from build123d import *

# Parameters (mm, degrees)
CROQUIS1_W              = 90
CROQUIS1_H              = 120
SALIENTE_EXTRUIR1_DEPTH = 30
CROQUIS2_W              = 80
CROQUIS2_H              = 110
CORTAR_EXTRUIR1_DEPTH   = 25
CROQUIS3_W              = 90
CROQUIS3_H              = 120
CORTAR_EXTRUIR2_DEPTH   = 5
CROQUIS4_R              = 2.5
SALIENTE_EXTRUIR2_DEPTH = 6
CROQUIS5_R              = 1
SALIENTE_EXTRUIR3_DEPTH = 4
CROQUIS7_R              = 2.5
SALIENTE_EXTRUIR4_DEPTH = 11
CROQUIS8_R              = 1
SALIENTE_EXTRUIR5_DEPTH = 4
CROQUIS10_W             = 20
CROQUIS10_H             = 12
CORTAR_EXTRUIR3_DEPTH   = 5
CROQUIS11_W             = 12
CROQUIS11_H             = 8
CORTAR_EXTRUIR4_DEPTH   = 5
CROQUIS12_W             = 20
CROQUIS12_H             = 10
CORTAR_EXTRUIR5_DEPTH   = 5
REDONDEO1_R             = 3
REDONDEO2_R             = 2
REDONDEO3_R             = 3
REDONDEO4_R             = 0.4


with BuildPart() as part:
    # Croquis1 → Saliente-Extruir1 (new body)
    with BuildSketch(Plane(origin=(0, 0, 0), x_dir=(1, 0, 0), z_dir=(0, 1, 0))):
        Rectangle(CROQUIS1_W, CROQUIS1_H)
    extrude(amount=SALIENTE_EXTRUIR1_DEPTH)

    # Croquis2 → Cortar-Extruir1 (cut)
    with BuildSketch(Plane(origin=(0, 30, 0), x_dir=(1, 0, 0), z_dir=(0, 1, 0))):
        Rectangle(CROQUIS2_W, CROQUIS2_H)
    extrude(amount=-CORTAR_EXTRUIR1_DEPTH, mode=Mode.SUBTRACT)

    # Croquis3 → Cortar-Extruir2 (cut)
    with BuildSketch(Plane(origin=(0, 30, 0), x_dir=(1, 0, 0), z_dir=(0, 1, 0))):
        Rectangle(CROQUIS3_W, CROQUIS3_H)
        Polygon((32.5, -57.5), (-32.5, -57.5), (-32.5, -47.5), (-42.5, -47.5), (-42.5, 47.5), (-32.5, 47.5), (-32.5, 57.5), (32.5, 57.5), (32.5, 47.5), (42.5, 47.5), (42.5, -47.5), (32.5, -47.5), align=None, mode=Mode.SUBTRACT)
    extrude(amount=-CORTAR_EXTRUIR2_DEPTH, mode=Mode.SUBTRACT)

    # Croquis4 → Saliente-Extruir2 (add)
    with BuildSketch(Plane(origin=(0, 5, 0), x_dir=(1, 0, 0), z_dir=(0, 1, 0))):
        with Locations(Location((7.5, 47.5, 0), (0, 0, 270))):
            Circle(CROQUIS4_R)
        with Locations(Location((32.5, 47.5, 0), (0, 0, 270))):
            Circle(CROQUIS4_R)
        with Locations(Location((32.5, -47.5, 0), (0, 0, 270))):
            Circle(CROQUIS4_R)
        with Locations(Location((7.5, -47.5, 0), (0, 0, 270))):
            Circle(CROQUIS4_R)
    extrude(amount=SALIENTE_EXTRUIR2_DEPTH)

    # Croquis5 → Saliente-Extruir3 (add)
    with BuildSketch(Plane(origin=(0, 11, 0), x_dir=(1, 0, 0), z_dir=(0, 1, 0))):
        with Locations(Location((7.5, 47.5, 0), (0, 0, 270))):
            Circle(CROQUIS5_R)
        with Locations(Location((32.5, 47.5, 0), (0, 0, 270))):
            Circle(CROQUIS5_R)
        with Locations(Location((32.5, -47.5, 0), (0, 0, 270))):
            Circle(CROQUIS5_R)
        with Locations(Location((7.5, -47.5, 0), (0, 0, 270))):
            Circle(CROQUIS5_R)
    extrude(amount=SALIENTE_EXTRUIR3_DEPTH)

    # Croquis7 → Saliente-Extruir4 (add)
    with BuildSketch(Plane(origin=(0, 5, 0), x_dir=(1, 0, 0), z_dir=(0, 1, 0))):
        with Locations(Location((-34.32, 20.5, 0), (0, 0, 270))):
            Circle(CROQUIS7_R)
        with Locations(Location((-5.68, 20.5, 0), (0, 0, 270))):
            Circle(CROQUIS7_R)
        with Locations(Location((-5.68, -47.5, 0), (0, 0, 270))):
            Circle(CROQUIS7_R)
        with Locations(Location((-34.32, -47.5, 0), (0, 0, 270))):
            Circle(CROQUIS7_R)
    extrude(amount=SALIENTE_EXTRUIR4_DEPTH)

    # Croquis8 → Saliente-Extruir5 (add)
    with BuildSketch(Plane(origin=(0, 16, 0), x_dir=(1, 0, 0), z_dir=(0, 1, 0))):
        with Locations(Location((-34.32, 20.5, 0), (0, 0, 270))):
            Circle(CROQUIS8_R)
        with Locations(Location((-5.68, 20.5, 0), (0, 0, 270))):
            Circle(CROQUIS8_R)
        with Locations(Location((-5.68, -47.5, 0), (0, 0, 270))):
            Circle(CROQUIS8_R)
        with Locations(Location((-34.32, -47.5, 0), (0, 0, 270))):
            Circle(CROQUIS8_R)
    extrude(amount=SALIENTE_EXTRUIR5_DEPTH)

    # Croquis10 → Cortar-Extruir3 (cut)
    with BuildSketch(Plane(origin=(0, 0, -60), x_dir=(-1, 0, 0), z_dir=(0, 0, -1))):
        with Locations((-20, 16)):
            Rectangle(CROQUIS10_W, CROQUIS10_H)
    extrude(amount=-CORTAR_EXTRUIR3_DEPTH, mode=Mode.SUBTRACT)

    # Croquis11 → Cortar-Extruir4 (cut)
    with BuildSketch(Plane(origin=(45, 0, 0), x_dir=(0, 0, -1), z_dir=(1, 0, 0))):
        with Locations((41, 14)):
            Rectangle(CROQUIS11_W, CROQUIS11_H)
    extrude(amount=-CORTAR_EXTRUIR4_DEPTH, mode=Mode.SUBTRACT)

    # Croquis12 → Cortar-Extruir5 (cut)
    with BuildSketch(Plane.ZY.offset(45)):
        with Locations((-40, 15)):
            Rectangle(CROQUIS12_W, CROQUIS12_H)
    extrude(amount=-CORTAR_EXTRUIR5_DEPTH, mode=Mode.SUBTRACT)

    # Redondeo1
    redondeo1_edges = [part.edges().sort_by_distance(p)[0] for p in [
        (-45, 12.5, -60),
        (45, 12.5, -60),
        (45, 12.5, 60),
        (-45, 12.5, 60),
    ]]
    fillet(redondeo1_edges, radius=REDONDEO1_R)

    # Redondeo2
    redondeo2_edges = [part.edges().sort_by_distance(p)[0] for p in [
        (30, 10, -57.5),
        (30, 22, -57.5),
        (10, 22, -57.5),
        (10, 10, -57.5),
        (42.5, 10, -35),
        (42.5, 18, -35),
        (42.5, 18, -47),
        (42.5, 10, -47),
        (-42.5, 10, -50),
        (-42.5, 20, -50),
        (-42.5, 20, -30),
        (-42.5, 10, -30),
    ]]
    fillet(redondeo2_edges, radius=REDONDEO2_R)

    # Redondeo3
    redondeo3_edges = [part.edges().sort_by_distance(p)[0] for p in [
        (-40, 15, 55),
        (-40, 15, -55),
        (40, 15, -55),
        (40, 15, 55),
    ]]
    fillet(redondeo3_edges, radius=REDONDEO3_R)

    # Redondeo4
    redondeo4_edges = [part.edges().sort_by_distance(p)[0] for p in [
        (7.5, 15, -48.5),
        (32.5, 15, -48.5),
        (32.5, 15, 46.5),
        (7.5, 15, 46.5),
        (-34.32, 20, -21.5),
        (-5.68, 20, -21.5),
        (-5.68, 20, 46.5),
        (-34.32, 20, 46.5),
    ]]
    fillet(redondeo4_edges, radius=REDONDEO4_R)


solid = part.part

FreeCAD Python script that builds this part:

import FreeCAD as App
import Part
import Sketcher
from FreeCAD import Vector
Q = App.Units.Quantity


def edges_at(feature, points):
    """Names of the edges that pass closest to the given points."""
    edges = feature.Shape.Edges
    near = lambda p: min(range(len(edges)), key=lambda i: edges[i].distToShape(Part.Vertex(*p))[0])
    return sorted({f"Edge{near(p) + 1}" for p in points})


def add_polygon(sketch, points):
    """Adds a closed chain of lines whose ends are joined by coincident constraints."""
    first, n = sketch.GeometryCount, len(points)
    for a, b in zip(points, points[1:] + points[:1]):
        sketch.addGeometry(Part.LineSegment(App.Vector(*a, 0), App.Vector(*b, 0)), False)
    for i in range(n):
        sketch.addConstraint(Sketcher.Constraint("Coincident", first + i, 2, first + (i + 1) % n, 1))

doc = App.newDocument("Part")
body = doc.addObject("PartDesign::Body", "Body")

sketch1 = doc.addObject("Sketcher::SketchObject", "Sketch")
body.addObject(sketch1)
sketch1.AttachmentSupport = (doc.XZ_Plane, [""])
sketch1.MapMode = "FlatFace"
add_polygon(sketch1, [(-45, -60), (-45, 60), (45, 60), (45, -60)])
sketch1.addConstraint(Sketcher.Constraint("Vertical", 0))
sketch1.addConstraint(Sketcher.Constraint("Horizontal", 1))
sketch1.addConstraint(Sketcher.Constraint("Vertical", 2))
sketch1.addConstraint(Sketcher.Constraint("Horizontal", 3))
sketch1.addConstraint(Sketcher.Constraint("Symmetric", 0, 2, 2, 2, -1, 1))
sketch1.addConstraint(Sketcher.Constraint("DistanceX", 1, 1, 1, 2, Q("90 mm")))
sketch1.addConstraint(Sketcher.Constraint("DistanceY", 0, 1, 0, 2, Q("120 mm")))
pad1 = doc.addObject("PartDesign::Pad", "Pad")
body.addObject(pad1)
pad1.Profile = sketch1
pad1.Length = 30
pad1.Reversed = True

sketch2 = doc.addObject("Sketcher::SketchObject", "Sketch001")
body.addObject(sketch2)
sketch2.AttachmentSupport = (doc.XZ_Plane, [""])
sketch2.MapMode = "FlatFace"
sketch2.AttachmentOffset = App.Placement(Vector(0, 0, -30), App.Rotation())
add_polygon(sketch2, [(-40, -55), (-40, 55), (40, 55), (40, -55)])
sketch2.addConstraint(Sketcher.Constraint("Vertical", 0))
sketch2.addConstraint(Sketcher.Constraint("Horizontal", 1))
sketch2.addConstraint(Sketcher.Constraint("Vertical", 2))
sketch2.addConstraint(Sketcher.Constraint("Horizontal", 3))
sketch2.addConstraint(Sketcher.Constraint("Symmetric", 0, 2, 2, 2, -1, 1))
sketch2.addConstraint(Sketcher.Constraint("DistanceX", 1, 1, 1, 2, Q("80 mm")))
sketch2.addConstraint(Sketcher.Constraint("DistanceY", 0, 1, 0, 2, Q("110 mm")))
pocket1 = doc.addObject("PartDesign::Pocket", "Pocket")
body.addObject(pocket1)
pocket1.Profile = sketch2
pocket1.Length = 25
pocket1.Reversed = True

sketch3 = doc.addObject("Sketcher::SketchObject", "Sketch002")
body.addObject(sketch3)
sketch3.AttachmentSupport = (doc.XZ_Plane, [""])
sketch3.MapMode = "FlatFace"
sketch3.AttachmentOffset = App.Placement(Vector(0, 0, -30), App.Rotation())
add_polygon(sketch3, [(-45, -60), (-45, 60), (45, 60), (45, -60)])
add_polygon(sketch3, [(32, 48), (32, 58), (-32, 58), (-32, 48), (-42, 48), (-42, -48), (-32, -48), (-32, -58), (32, -58), (32, -48), (42, -48), (42, 48)])
sketch3.addConstraint(Sketcher.Constraint("Vertical", 0))
sketch3.addConstraint(Sketcher.Constraint("Horizontal", 1))
sketch3.addConstraint(Sketcher.Constraint("Vertical", 2))
sketch3.addConstraint(Sketcher.Constraint("Horizontal", 3))
sketch3.addConstraint(Sketcher.Constraint("Vertical", 4))
sketch3.addConstraint(Sketcher.Constraint("Horizontal", 5))
sketch3.addConstraint(Sketcher.Constraint("Vertical", 6))
sketch3.addConstraint(Sketcher.Constraint("Horizontal", 7))
sketch3.addConstraint(Sketcher.Constraint("Vertical", 8))
sketch3.addConstraint(Sketcher.Constraint("Horizontal", 9))
sketch3.addConstraint(Sketcher.Constraint("Vertical", 10))
sketch3.addConstraint(Sketcher.Constraint("Horizontal", 11))
sketch3.addConstraint(Sketcher.Constraint("Vertical", 12))
sketch3.addConstraint(Sketcher.Constraint("Horizontal", 13))
sketch3.addConstraint(Sketcher.Constraint("Vertical", 14))
sketch3.addConstraint(Sketcher.Constraint("Horizontal", 15))
sketch3.addConstraint(Sketcher.Constraint("Symmetric", 0, 2, 2, 2, -1, 1))
sketch3.addConstraint(Sketcher.Constraint("Symmetric", 4, 2, 10, 2, -1, 1))
sketch3.addConstraint(Sketcher.Constraint("Symmetric", 6, 2, 12, 2, -1, 1))
sketch3.addConstraint(Sketcher.Constraint("Symmetric", 8, 2, 14, 2, -1, 1))
sketch3.addConstraint(Sketcher.Constraint("Symmetric", 9, 2, 12, 2, -2))
sketch3.addConstraint(Sketcher.Constraint("Equal", 15, 4))
sketch3.addConstraint(Sketcher.Constraint("DistanceX", 1, 1, 1, 2, Q("90 mm")))
sketch3.addConstraint(Sketcher.Constraint("DistanceX", 5, 2, 5, 1, Q("65 mm")))
sketch3.addConstraint(Sketcher.Constraint("DistanceX", 7, 2, 7, 1, Q("10 mm")))
sketch3.addConstraint(Sketcher.Constraint("DistanceY", 0, 1, 0, 2, Q("120 mm")))
sketch3.addConstraint(Sketcher.Constraint("DistanceY", 8, 2, 8, 1, Q("95 mm")))
pocket2 = doc.addObject("PartDesign::Pocket", "Pocket001")
body.addObject(pocket2)
pocket2.Profile = sketch3
pocket2.Length = 5
pocket2.Reversed = True

sketch4 = doc.addObject("Sketcher::SketchObject", "Sketch003")
body.addObject(sketch4)
sketch4.AttachmentSupport = (doc.XZ_Plane, [""])
sketch4.MapMode = "FlatFace"
sketch4.AttachmentOffset = App.Placement(Vector(0, 0, -5), App.Rotation())
sketch4.addGeometry(Part.Circle(Vector(7.5, -47.5, 0), Vector(0, 0, 1), 2.5), False)
sketch4.addGeometry(Part.Circle(Vector(32.5, -47.5, 0), Vector(0, 0, 1), 2.5), False)
sketch4.addGeometry(Part.Circle(Vector(32.5, 47.5, 0), Vector(0, 0, 1), 2.5), False)
sketch4.addGeometry(Part.Circle(Vector(7.5, 47.5, 0), Vector(0, 0, 1), 2.5), False)
sketch4.addConstraint(Sketcher.Constraint("Equal", 0, 1))
sketch4.addConstraint(Sketcher.Constraint("Equal", 1, 2))
sketch4.addConstraint(Sketcher.Constraint("Equal", 2, 3))
sketch4.addConstraint(Sketcher.Constraint("Symmetric", 1, 3, 2, 3, -1))
sketch4.addConstraint(Sketcher.Constraint("Symmetric", 0, 3, 3, 3, -1))
sketch4.addConstraint(Sketcher.Constraint("Horizontal", 0, 3, 1, 3))
sketch4.addConstraint(Sketcher.Constraint("Diameter", 0, Q("5 mm")))
sketch4.addConstraint(Sketcher.Constraint("DistanceX", 0, 3, 1, 3, Q("25 mm")))
sketch4.addConstraint(Sketcher.Constraint("DistanceY", 1, 3, 2, 3, Q("95 mm")))
sketch4.addConstraint(Sketcher.Constraint("DistanceX", -1, 1, 0, 3, Q("7.5 mm")))
pad2 = doc.addObject("PartDesign::Pad", "Pad001")
body.addObject(pad2)
pad2.Profile = sketch4
pad2.Length = 6
pad2.Reversed = True

sketch5 = doc.addObject("Sketcher::SketchObject", "Sketch004")
body.addObject(sketch5)
sketch5.AttachmentSupport = (doc.XZ_Plane, [""])
sketch5.MapMode = "FlatFace"
sketch5.AttachmentOffset = App.Placement(Vector(0, 0, -11), App.Rotation())
sketch5.addGeometry(Part.Circle(Vector(7.5, -47.5, 0), Vector(0, 0, 1), 1), False)
sketch5.addGeometry(Part.Circle(Vector(32.5, -47.5, 0), Vector(0, 0, 1), 1), False)
sketch5.addGeometry(Part.Circle(Vector(32.5, 47.5, 0), Vector(0, 0, 1), 1), False)
sketch5.addGeometry(Part.Circle(Vector(7.5, 47.5, 0), Vector(0, 0, 1), 1), False)
sketch5.addConstraint(Sketcher.Constraint("Equal", 0, 1))
sketch5.addConstraint(Sketcher.Constraint("Equal", 1, 2))
sketch5.addConstraint(Sketcher.Constraint("Equal", 2, 3))
sketch5.addConstraint(Sketcher.Constraint("Symmetric", 1, 3, 2, 3, -1))
sketch5.addConstraint(Sketcher.Constraint("Symmetric", 0, 3, 3, 3, -1))
sketch5.addConstraint(Sketcher.Constraint("Horizontal", 0, 3, 1, 3))
sketch5.addConstraint(Sketcher.Constraint("Diameter", 0, Q("2 mm")))
sketch5.addConstraint(Sketcher.Constraint("DistanceX", 0, 3, 1, 3, Q("25 mm")))
sketch5.addConstraint(Sketcher.Constraint("DistanceY", 1, 3, 2, 3, Q("95 mm")))
sketch5.addConstraint(Sketcher.Constraint("DistanceX", -1, 1, 0, 3, Q("7.5 mm")))
pad3 = doc.addObject("PartDesign::Pad", "Pad002")
body.addObject(pad3)
pad3.Profile = sketch5
pad3.Length = 4
pad3.Reversed = True

sketch6 = doc.addObject("Sketcher::SketchObject", "Sketch005")
body.addObject(sketch6)
sketch6.AttachmentSupport = (doc.XZ_Plane, [""])
sketch6.MapMode = "FlatFace"
sketch6.AttachmentOffset = App.Placement(Vector(0, 0, -5), App.Rotation())
sketch6.addGeometry(Part.Circle(Vector(-34.3, -20.5, 0), Vector(0, 0, 1), 2.5), False)
sketch6.addGeometry(Part.Circle(Vector(-5.7, -20.5, 0), Vector(0, 0, 1), 2.5), False)
sketch6.addGeometry(Part.Circle(Vector(-5.7, 47.5, 0), Vector(0, 0, 1), 2.5), False)
sketch6.addGeometry(Part.Circle(Vector(-34.3, 47.5, 0), Vector(0, 0, 1), 2.5), False)
sketch6.addConstraint(Sketcher.Constraint("Equal", 0, 1))
sketch6.addConstraint(Sketcher.Constraint("Equal", 1, 2))
sketch6.addConstraint(Sketcher.Constraint("Equal", 2, 3))
sketch6.addConstraint(Sketcher.Constraint("Horizontal", 0, 3, 1, 3))
sketch6.addConstraint(Sketcher.Constraint("Horizontal", 2, 3, 3, 3))
sketch6.addConstraint(Sketcher.Constraint("Vertical", 1, 3, 2, 3))
sketch6.addConstraint(Sketcher.Constraint("Vertical", 0, 3, 3, 3))
sketch6.addConstraint(Sketcher.Constraint("Diameter", 0, Q("5 mm")))
sketch6.addConstraint(Sketcher.Constraint("DistanceY", 1, 3, 2, 3, Q("68 mm")))
sketch6.addConstraint(Sketcher.Constraint("DistanceY", 0, 3, -1, 1, Q("20.5 mm")))
sketch6.addConstraint(Sketcher.Constraint("DistanceX", 0, 3, -1, 1, Q("34.32 mm")))
sketch6.addConstraint(Sketcher.Constraint("DistanceX", 1, 3, -1, 1, Q("5.68 mm")))
pad4 = doc.addObject("PartDesign::Pad", "Pad003")
body.addObject(pad4)
pad4.Profile = sketch6
pad4.Length = 11
pad4.Reversed = True

sketch7 = doc.addObject("Sketcher::SketchObject", "Sketch006")
body.addObject(sketch7)
sketch7.AttachmentSupport = (doc.XZ_Plane, [""])
sketch7.MapMode = "FlatFace"
sketch7.AttachmentOffset = App.Placement(Vector(0, 0, -16), App.Rotation())
sketch7.addGeometry(Part.Circle(Vector(-34.3, -20.5, 0), Vector(0, 0, 1), 1), False)
sketch7.addGeometry(Part.Circle(Vector(-5.7, -20.5, 0), Vector(0, 0, 1), 1), False)
sketch7.addGeometry(Part.Circle(Vector(-5.7, 47.5, 0), Vector(0, 0, 1), 1), False)
sketch7.addGeometry(Part.Circle(Vector(-34.3, 47.5, 0), Vector(0, 0, 1), 1), False)
sketch7.addConstraint(Sketcher.Constraint("Equal", 0, 1))
sketch7.addConstraint(Sketcher.Constraint("Equal", 1, 2))
sketch7.addConstraint(Sketcher.Constraint("Equal", 2, 3))
sketch7.addConstraint(Sketcher.Constraint("Horizontal", 0, 3, 1, 3))
sketch7.addConstraint(Sketcher.Constraint("Horizontal", 2, 3, 3, 3))
sketch7.addConstraint(Sketcher.Constraint("Vertical", 1, 3, 2, 3))
sketch7.addConstraint(Sketcher.Constraint("Vertical", 0, 3, 3, 3))
sketch7.addConstraint(Sketcher.Constraint("Diameter", 0, Q("2 mm")))
sketch7.addConstraint(Sketcher.Constraint("DistanceY", 1, 3, 2, 3, Q("68 mm")))
sketch7.addConstraint(Sketcher.Constraint("DistanceY", 0, 3, -1, 1, Q("20.5 mm")))
sketch7.addConstraint(Sketcher.Constraint("DistanceX", 0, 3, -1, 1, Q("34.32 mm")))
sketch7.addConstraint(Sketcher.Constraint("DistanceX", 1, 3, -1, 1, Q("5.68 mm")))
pad5 = doc.addObject("PartDesign::Pad", "Pad004")
body.addObject(pad5)
pad5.Profile = sketch7
pad5.Length = 4
pad5.Reversed = True

sketch8 = doc.addObject("Sketcher::SketchObject", "Sketch007")
body.addObject(sketch8)
sketch8.AttachmentSupport = (doc.XY_Plane, [""])
sketch8.MapMode = "FlatFace"
sketch8.AttachmentOffset = App.Placement(Vector(0, 0, -60), App.Rotation())
add_polygon(sketch8, [(30, 22), (30, 10), (10, 10), (10, 22)])
sketch8.addConstraint(Sketcher.Constraint("Vertical", 0))
sketch8.addConstraint(Sketcher.Constraint("Horizontal", 1))
sketch8.addConstraint(Sketcher.Constraint("Vertical", 2))
sketch8.addConstraint(Sketcher.Constraint("Horizontal", 3))
sketch8.addConstraint(Sketcher.Constraint("DistanceX", 1, 2, 1, 1, Q("20 mm")))
sketch8.addConstraint(Sketcher.Constraint("DistanceY", 0, 2, 0, 1, Q("12 mm")))
sketch8.addConstraint(Sketcher.Constraint("DistanceX", -1, 1, 0, 2, Q("30 mm")))
sketch8.addConstraint(Sketcher.Constraint("DistanceY", -1, 1, 0, 2, Q("10 mm")))
pocket3 = doc.addObject("PartDesign::Pocket", "Pocket002")
body.addObject(pocket3)
pocket3.Profile = sketch8
pocket3.Length = 5
pocket3.Reversed = True

sketch9 = doc.addObject("Sketcher::SketchObject", "Sketch008")
body.addObject(sketch9)
sketch9.AttachmentSupport = (doc.YZ_Plane, [""])
sketch9.MapMode = "FlatFace"
sketch9.AttachmentOffset = App.Placement(Vector(0, 0, 45), App.Rotation())
add_polygon(sketch9, [(18, -35), (10, -35), (10, -47), (18, -47)])
sketch9.addConstraint(Sketcher.Constraint("Horizontal", 0))
sketch9.addConstraint(Sketcher.Constraint("Vertical", 1))
sketch9.addConstraint(Sketcher.Constraint("Horizontal", 2))
sketch9.addConstraint(Sketcher.Constraint("Vertical", 3))
sketch9.addConstraint(Sketcher.Constraint("DistanceX", 0, 2, 0, 1, Q("8 mm")))
sketch9.addConstraint(Sketcher.Constraint("DistanceY", 1, 2, 1, 1, Q("12 mm")))
sketch9.addConstraint(Sketcher.Constraint("DistanceX", -1, 1, 0, 2, Q("10 mm")))
sketch9.addConstraint(Sketcher.Constraint("DistanceY", 0, 2, -1, 1, Q("35 mm")))
pocket4 = doc.addObject("PartDesign::Pocket", "Pocket003")
body.addObject(pocket4)
pocket4.Profile = sketch9
pocket4.Length = 5

sketch10 = doc.addObject("Sketcher::SketchObject", "Sketch009")
body.addObject(sketch10)
sketch10.AttachmentSupport = (doc.YZ_Plane, [""])
sketch10.MapMode = "FlatFace"
sketch10.AttachmentOffset = App.Placement(Vector(0, 0, -45), App.Rotation())
add_polygon(sketch10, [(20, -50), (10, -50), (10, -30), (20, -30)])
sketch10.addConstraint(Sketcher.Constraint("Horizontal", 0))
sketch10.addConstraint(Sketcher.Constraint("Vertical", 1))
sketch10.addConstraint(Sketcher.Constraint("Horizontal", 2))
sketch10.addConstraint(Sketcher.Constraint("Vertical", 3))
sketch10.addConstraint(Sketcher.Constraint("DistanceX", 0, 2, 0, 1, Q("10 mm")))
sketch10.addConstraint(Sketcher.Constraint("DistanceY", 1, 1, 1, 2, Q("20 mm")))
sketch10.addConstraint(Sketcher.Constraint("DistanceX", -1, 1, 0, 2, Q("10 mm")))
sketch10.addConstraint(Sketcher.Constraint("DistanceY", 0, 2, -1, 1, Q("50 mm")))
pocket5 = doc.addObject("PartDesign::Pocket", "Pocket004")
body.addObject(pocket5)
pocket5.Profile = sketch10
pocket5.Length = 5
pocket5.Reversed = True
doc.recompute()

fillet = doc.addObject("PartDesign::Fillet", "Fillet")
body.addObject(fillet)
fillet.Base = (pocket5, edges_at(pocket5, [
    (-45, 12.5, -60),
    (45, 12.5, -60),
    (45, 12.5, 60),
    (-45, 12.5, 60),
]))
fillet.Radius = 3
doc.recompute()

fillet2 = doc.addObject("PartDesign::Fillet", "Fillet001")
body.addObject(fillet2)
fillet2.Base = (fillet, edges_at(fillet, [
    (30, 10, -57.5),
    (30, 22, -57.5),
    (10, 22, -57.5),
    (10, 10, -57.5),
    (42.5, 10, -35),
    (42.5, 18, -35),
    (42.5, 18, -47),
    (42.5, 10, -47),
    (-42.5, 10, -50),
    (-42.5, 20, -50),
    (-42.5, 20, -30),
    (-42.5, 10, -30),
]))
fillet2.Radius = 2
doc.recompute()

fillet3 = doc.addObject("PartDesign::Fillet", "Fillet002")
body.addObject(fillet3)
fillet3.Base = (fillet2, edges_at(fillet2, [
    (-40, 15, 55),
    (-40, 15, -55),
    (40, 15, -55),
    (40, 15, 55),
]))
fillet3.Radius = 3
doc.recompute()

fillet4 = doc.addObject("PartDesign::Fillet", "Fillet003")
body.addObject(fillet4)
fillet4.Base = (fillet3, edges_at(fillet3, [
    (7.5, 15, -48.5),
    (32.5, 15, -48.5),
    (32.5, 15, 46.5),
    (7.5, 15, 46.5),
    (-34.32, 20, -21.5),
    (-5.68, 20, -21.5),
    (-5.68, 20, 46.5),
    (-34.32, 20, 46.5),
]))
fillet4.Radius = 0.4

doc.recompute()
